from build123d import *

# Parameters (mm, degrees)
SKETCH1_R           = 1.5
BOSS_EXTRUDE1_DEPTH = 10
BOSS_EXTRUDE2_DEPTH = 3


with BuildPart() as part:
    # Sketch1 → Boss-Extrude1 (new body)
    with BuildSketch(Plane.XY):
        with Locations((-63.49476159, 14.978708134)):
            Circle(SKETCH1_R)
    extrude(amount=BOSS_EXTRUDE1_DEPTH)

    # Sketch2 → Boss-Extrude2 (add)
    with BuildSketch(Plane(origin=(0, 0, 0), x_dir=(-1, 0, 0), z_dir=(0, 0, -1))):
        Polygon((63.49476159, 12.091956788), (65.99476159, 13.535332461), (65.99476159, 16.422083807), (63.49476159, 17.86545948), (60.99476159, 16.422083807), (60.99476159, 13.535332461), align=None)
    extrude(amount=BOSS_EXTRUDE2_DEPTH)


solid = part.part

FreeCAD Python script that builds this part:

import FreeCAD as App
import Part
import Sketcher

V = App.Vector
Q = App.Units.Quantity

doc = App.newDocument("Part")
body = doc.addObject("PartDesign::Body", "Body")

sketch1 = body.newObject("Sketcher::SketchObject", "Sketch")
sketch1.AttachmentSupport = (doc.getObject("XY_Plane"), [""])
sketch1.MapMode = "FlatFace"
sketch1.addGeometry(Part.Circle(V(-63.5, 15, 0), V(0, 0, 1), 1.5), False)
sketch1.addConstraint(Sketcher.Constraint("Diameter", 0, Q("3 mm")))
sketch1.addConstraint(Sketcher.Constraint("DistanceX", 0, 3, -1, 1, Q("63.494762 mm")))
sketch1.addConstraint(Sketcher.Constraint("DistanceY", -1, 1, 0, 3, Q("14.978708 mm")))
pad1 = body.newObject("PartDesign::Pad", "Pad")
pad1.Profile = sketch1
pad1.Length = 10

sketch2 = body.newObject("Sketcher::SketchObject", "Sketch001")
sketch2.AttachmentSupport = (doc.getObject("XY_Plane"), [""])
sketch2.MapMode = "FlatFace"
sketch2.addGeometry(Part.LineSegment(V(-63.5, 12.1, 0), V(-66, 13.5, 0)), False)
sketch2.addGeometry(Part.LineSegment(V(-66, 13.5, 0), V(-66, 16.4, 0)), False)
sketch2.addGeometry(Part.LineSegment(V(-66, 16.4, 0), V(-63.5, 17.9, 0)), False)
sketch2.addGeometry(Part.LineSegment(V(-63.5, 17.9, 0), V(-61, 16.4, 0)), False)
sketch2.addGeometry(Part.LineSegment(V(-61, 16.4, 0), V(-61, 13.5, 0)), False)
sketch2.addGeometry(Part.LineSegment(V(-61, 13.5, 0), V(-63.5, 12.1, 0)), False)
sketch2.addConstraint(Sketcher.Constraint("Coincident", 0, 2, 1, 1))
sketch2.addConstraint(Sketcher.Constraint("Coincident", 1, 2, 2, 1))
sketch2.addConstraint(Sketcher.Constraint("Coincident", 2, 2, 3, 1))
sketch2.addConstraint(Sketcher.Constraint("Coincident", 3, 2, 4, 1))
sketch2.addConstraint(Sketcher.Constraint("Coincident", 4, 2, 5, 1))
sketch2.addConstraint(Sketcher.Constraint("Coincident", 5, 2, 0, 1))
sketch2.addConstraint(Sketcher.Constraint("Vertical", 1))
sketch2.addConstraint(Sketcher.Constraint("Vertical", 4))
sketch2.addConstraint(Sketcher.Constraint("Parallel", 0, 3))
sketch2.addConstraint(Sketcher.Constraint("Parallel", 2, 5))
sketch2.addConstraint(Sketcher.Constraint("Horizontal", 1, 2, 3, 2))
sketch2.addConstraint(Sketcher.Constraint("Horizontal", 0, 2, 4, 2))
sketch2.addConstraint(Sketcher.Constraint("Vertical", 2, 2, 5, 2))
sketch2.addConstraint(Sketcher.Constraint("Angle", 0, Q("150 deg")))
sketch2.addConstraint(Sketcher.Constraint("DistanceX", 1, 2, 3, 2, Q("5 mm")))
sketch2.addConstraint(Sketcher.Constraint("DistanceY", 1, 1, 1, 2, Q("2.886751 mm")))
sketch2.addConstraint(Sketcher.Constraint("DistanceX", 0, 2, -1, 1, Q("65.994762 mm")))
sketch2.addConstraint(Sketcher.Constraint("DistanceY", -1, 1, 2, 2, Q("17.865459 mm")))
pad2 = body.newObject("PartDesign::Pad", "Pad001")
pad2.Profile = sketch2
pad2.Length = 3
pad2.Reversed = True

doc.recompute()
